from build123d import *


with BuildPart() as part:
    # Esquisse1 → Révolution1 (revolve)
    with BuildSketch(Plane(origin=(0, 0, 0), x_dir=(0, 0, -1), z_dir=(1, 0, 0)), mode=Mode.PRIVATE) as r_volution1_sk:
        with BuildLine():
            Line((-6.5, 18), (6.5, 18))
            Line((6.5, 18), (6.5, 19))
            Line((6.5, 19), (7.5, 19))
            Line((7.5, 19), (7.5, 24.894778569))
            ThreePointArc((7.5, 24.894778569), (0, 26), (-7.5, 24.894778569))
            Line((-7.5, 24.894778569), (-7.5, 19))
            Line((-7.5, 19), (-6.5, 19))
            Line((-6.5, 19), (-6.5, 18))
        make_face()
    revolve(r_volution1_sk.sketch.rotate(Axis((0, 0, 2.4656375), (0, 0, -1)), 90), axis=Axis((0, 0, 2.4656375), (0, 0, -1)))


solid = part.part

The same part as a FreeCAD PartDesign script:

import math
import FreeCAD as App
import Part
import Sketcher
from FreeCAD import Vector
Q = App.Units.Quantity

doc = App.newDocument("Part")
body = doc.addObject("PartDesign::Body", "Body")

# Sketch on YZ plane
sketch1 = body.newObject("Sketcher::SketchObject", "Sketch")
sketch1.AttachmentSupport = (doc.getObject("YZ_Plane"), [""])
sketch1.MapMode = "FlatFace"
sketch1.addGeometry(Part.LineSegment(Vector(18, 6.5, 0), Vector(18, -6.5, 0)), False)
sketch1.addGeometry(Part.LineSegment(Vector(18, -6.5, 0), Vector(19, -6.5, 0)), False)
sketch1.addGeometry(Part.LineSegment(Vector(19, -6.5, 0), Vector(19, -7.5, 0)), False)
sketch1.addGeometry(Part.LineSegment(Vector(19, -7.5, 0), Vector(24.9, -7.5, 0)), False)
sketch1.addGeometry(Part.ArcOfCircle(Part.Circle(Vector(0, 0, 0), Vector(0, 0, 1), 26), math.radians(-17), math.radians(17)), False)
sketch1.addGeometry(Part.LineSegment(Vector(24.9, 7.5, 0), Vector(19, 7.5, 0)), False)
sketch1.addGeometry(Part.LineSegment(Vector(19, 7.5, 0), Vector(19, 6.5, 0)), False)
sketch1.addGeometry(Part.LineSegment(Vector(19, 6.5, 0), Vector(18, 6.5, 0)), False)
sketch1.addConstraint(Sketcher.Constraint("Coincident", 0, 2, 1, 1))
sketch1.addConstraint(Sketcher.Constraint("Coincident", 1, 2, 2, 1))
sketch1.addConstraint(Sketcher.Constraint("Coincident", 2, 2, 3, 1))
sketch1.addConstraint(Sketcher.Constraint("Coincident", 3, 2, 4, 1))
sketch1.addConstraint(Sketcher.Constraint("Coincident", 4, 2, 5, 1))
sketch1.addConstraint(Sketcher.Constraint("Coincident", 5, 2, 6, 1))
sketch1.addConstraint(Sketcher.Constraint("Coincident", 6, 2, 7, 1))
sketch1.addConstraint(Sketcher.Constraint("Coincident", 7, 2, 0, 1))
sketch1.addConstraint(Sketcher.Constraint("Vertical", 0))
sketch1.addConstraint(Sketcher.Constraint("Horizontal", 1))
sketch1.addConstraint(Sketcher.Constraint("Vertical", 2))
sketch1.addConstraint(Sketcher.Constraint("Horizontal", 3))
sketch1.addConstraint(Sketcher.Constraint("Horizontal", 5))
sketch1.addConstraint(Sketcher.Constraint("Vertical", 6))
sketch1.addConstraint(Sketcher.Constraint("Horizontal", 7))
sketch1.addConstraint(Sketcher.Constraint("Coincident", 4, 3, -1, 1))
sketch1.addConstraint(Sketcher.Constraint("Symmetric", 2, 2, 5, 2, -1))
sketch1.addConstraint(Sketcher.Constraint("Equal", 7, 2))
sketch1.addConstraint(Sketcher.Constraint("Equal", 2, 6))
sketch1.addConstraint(Sketcher.Constraint("Radius", 4, Q("26 mm")))
sketch1.addConstraint(Sketcher.Constraint("DistanceX", 1, 1, 1, 2, Q("1 mm")))
sketch1.addConstraint(Sketcher.Constraint("DistanceY", 0, 2, 0, 1, Q("13 mm")))
sketch1.addConstraint(Sketcher.Constraint("DistanceX", -1, 1, 0, 2, Q("18 mm")))
revolution = body.newObject("PartDesign::Revolution", "Revolution")
revolution.Profile = sketch1
revolution.ReferenceAxis = (sketch1, ["V_Axis"])
revolution.Angle = 360

doc.recompute()
